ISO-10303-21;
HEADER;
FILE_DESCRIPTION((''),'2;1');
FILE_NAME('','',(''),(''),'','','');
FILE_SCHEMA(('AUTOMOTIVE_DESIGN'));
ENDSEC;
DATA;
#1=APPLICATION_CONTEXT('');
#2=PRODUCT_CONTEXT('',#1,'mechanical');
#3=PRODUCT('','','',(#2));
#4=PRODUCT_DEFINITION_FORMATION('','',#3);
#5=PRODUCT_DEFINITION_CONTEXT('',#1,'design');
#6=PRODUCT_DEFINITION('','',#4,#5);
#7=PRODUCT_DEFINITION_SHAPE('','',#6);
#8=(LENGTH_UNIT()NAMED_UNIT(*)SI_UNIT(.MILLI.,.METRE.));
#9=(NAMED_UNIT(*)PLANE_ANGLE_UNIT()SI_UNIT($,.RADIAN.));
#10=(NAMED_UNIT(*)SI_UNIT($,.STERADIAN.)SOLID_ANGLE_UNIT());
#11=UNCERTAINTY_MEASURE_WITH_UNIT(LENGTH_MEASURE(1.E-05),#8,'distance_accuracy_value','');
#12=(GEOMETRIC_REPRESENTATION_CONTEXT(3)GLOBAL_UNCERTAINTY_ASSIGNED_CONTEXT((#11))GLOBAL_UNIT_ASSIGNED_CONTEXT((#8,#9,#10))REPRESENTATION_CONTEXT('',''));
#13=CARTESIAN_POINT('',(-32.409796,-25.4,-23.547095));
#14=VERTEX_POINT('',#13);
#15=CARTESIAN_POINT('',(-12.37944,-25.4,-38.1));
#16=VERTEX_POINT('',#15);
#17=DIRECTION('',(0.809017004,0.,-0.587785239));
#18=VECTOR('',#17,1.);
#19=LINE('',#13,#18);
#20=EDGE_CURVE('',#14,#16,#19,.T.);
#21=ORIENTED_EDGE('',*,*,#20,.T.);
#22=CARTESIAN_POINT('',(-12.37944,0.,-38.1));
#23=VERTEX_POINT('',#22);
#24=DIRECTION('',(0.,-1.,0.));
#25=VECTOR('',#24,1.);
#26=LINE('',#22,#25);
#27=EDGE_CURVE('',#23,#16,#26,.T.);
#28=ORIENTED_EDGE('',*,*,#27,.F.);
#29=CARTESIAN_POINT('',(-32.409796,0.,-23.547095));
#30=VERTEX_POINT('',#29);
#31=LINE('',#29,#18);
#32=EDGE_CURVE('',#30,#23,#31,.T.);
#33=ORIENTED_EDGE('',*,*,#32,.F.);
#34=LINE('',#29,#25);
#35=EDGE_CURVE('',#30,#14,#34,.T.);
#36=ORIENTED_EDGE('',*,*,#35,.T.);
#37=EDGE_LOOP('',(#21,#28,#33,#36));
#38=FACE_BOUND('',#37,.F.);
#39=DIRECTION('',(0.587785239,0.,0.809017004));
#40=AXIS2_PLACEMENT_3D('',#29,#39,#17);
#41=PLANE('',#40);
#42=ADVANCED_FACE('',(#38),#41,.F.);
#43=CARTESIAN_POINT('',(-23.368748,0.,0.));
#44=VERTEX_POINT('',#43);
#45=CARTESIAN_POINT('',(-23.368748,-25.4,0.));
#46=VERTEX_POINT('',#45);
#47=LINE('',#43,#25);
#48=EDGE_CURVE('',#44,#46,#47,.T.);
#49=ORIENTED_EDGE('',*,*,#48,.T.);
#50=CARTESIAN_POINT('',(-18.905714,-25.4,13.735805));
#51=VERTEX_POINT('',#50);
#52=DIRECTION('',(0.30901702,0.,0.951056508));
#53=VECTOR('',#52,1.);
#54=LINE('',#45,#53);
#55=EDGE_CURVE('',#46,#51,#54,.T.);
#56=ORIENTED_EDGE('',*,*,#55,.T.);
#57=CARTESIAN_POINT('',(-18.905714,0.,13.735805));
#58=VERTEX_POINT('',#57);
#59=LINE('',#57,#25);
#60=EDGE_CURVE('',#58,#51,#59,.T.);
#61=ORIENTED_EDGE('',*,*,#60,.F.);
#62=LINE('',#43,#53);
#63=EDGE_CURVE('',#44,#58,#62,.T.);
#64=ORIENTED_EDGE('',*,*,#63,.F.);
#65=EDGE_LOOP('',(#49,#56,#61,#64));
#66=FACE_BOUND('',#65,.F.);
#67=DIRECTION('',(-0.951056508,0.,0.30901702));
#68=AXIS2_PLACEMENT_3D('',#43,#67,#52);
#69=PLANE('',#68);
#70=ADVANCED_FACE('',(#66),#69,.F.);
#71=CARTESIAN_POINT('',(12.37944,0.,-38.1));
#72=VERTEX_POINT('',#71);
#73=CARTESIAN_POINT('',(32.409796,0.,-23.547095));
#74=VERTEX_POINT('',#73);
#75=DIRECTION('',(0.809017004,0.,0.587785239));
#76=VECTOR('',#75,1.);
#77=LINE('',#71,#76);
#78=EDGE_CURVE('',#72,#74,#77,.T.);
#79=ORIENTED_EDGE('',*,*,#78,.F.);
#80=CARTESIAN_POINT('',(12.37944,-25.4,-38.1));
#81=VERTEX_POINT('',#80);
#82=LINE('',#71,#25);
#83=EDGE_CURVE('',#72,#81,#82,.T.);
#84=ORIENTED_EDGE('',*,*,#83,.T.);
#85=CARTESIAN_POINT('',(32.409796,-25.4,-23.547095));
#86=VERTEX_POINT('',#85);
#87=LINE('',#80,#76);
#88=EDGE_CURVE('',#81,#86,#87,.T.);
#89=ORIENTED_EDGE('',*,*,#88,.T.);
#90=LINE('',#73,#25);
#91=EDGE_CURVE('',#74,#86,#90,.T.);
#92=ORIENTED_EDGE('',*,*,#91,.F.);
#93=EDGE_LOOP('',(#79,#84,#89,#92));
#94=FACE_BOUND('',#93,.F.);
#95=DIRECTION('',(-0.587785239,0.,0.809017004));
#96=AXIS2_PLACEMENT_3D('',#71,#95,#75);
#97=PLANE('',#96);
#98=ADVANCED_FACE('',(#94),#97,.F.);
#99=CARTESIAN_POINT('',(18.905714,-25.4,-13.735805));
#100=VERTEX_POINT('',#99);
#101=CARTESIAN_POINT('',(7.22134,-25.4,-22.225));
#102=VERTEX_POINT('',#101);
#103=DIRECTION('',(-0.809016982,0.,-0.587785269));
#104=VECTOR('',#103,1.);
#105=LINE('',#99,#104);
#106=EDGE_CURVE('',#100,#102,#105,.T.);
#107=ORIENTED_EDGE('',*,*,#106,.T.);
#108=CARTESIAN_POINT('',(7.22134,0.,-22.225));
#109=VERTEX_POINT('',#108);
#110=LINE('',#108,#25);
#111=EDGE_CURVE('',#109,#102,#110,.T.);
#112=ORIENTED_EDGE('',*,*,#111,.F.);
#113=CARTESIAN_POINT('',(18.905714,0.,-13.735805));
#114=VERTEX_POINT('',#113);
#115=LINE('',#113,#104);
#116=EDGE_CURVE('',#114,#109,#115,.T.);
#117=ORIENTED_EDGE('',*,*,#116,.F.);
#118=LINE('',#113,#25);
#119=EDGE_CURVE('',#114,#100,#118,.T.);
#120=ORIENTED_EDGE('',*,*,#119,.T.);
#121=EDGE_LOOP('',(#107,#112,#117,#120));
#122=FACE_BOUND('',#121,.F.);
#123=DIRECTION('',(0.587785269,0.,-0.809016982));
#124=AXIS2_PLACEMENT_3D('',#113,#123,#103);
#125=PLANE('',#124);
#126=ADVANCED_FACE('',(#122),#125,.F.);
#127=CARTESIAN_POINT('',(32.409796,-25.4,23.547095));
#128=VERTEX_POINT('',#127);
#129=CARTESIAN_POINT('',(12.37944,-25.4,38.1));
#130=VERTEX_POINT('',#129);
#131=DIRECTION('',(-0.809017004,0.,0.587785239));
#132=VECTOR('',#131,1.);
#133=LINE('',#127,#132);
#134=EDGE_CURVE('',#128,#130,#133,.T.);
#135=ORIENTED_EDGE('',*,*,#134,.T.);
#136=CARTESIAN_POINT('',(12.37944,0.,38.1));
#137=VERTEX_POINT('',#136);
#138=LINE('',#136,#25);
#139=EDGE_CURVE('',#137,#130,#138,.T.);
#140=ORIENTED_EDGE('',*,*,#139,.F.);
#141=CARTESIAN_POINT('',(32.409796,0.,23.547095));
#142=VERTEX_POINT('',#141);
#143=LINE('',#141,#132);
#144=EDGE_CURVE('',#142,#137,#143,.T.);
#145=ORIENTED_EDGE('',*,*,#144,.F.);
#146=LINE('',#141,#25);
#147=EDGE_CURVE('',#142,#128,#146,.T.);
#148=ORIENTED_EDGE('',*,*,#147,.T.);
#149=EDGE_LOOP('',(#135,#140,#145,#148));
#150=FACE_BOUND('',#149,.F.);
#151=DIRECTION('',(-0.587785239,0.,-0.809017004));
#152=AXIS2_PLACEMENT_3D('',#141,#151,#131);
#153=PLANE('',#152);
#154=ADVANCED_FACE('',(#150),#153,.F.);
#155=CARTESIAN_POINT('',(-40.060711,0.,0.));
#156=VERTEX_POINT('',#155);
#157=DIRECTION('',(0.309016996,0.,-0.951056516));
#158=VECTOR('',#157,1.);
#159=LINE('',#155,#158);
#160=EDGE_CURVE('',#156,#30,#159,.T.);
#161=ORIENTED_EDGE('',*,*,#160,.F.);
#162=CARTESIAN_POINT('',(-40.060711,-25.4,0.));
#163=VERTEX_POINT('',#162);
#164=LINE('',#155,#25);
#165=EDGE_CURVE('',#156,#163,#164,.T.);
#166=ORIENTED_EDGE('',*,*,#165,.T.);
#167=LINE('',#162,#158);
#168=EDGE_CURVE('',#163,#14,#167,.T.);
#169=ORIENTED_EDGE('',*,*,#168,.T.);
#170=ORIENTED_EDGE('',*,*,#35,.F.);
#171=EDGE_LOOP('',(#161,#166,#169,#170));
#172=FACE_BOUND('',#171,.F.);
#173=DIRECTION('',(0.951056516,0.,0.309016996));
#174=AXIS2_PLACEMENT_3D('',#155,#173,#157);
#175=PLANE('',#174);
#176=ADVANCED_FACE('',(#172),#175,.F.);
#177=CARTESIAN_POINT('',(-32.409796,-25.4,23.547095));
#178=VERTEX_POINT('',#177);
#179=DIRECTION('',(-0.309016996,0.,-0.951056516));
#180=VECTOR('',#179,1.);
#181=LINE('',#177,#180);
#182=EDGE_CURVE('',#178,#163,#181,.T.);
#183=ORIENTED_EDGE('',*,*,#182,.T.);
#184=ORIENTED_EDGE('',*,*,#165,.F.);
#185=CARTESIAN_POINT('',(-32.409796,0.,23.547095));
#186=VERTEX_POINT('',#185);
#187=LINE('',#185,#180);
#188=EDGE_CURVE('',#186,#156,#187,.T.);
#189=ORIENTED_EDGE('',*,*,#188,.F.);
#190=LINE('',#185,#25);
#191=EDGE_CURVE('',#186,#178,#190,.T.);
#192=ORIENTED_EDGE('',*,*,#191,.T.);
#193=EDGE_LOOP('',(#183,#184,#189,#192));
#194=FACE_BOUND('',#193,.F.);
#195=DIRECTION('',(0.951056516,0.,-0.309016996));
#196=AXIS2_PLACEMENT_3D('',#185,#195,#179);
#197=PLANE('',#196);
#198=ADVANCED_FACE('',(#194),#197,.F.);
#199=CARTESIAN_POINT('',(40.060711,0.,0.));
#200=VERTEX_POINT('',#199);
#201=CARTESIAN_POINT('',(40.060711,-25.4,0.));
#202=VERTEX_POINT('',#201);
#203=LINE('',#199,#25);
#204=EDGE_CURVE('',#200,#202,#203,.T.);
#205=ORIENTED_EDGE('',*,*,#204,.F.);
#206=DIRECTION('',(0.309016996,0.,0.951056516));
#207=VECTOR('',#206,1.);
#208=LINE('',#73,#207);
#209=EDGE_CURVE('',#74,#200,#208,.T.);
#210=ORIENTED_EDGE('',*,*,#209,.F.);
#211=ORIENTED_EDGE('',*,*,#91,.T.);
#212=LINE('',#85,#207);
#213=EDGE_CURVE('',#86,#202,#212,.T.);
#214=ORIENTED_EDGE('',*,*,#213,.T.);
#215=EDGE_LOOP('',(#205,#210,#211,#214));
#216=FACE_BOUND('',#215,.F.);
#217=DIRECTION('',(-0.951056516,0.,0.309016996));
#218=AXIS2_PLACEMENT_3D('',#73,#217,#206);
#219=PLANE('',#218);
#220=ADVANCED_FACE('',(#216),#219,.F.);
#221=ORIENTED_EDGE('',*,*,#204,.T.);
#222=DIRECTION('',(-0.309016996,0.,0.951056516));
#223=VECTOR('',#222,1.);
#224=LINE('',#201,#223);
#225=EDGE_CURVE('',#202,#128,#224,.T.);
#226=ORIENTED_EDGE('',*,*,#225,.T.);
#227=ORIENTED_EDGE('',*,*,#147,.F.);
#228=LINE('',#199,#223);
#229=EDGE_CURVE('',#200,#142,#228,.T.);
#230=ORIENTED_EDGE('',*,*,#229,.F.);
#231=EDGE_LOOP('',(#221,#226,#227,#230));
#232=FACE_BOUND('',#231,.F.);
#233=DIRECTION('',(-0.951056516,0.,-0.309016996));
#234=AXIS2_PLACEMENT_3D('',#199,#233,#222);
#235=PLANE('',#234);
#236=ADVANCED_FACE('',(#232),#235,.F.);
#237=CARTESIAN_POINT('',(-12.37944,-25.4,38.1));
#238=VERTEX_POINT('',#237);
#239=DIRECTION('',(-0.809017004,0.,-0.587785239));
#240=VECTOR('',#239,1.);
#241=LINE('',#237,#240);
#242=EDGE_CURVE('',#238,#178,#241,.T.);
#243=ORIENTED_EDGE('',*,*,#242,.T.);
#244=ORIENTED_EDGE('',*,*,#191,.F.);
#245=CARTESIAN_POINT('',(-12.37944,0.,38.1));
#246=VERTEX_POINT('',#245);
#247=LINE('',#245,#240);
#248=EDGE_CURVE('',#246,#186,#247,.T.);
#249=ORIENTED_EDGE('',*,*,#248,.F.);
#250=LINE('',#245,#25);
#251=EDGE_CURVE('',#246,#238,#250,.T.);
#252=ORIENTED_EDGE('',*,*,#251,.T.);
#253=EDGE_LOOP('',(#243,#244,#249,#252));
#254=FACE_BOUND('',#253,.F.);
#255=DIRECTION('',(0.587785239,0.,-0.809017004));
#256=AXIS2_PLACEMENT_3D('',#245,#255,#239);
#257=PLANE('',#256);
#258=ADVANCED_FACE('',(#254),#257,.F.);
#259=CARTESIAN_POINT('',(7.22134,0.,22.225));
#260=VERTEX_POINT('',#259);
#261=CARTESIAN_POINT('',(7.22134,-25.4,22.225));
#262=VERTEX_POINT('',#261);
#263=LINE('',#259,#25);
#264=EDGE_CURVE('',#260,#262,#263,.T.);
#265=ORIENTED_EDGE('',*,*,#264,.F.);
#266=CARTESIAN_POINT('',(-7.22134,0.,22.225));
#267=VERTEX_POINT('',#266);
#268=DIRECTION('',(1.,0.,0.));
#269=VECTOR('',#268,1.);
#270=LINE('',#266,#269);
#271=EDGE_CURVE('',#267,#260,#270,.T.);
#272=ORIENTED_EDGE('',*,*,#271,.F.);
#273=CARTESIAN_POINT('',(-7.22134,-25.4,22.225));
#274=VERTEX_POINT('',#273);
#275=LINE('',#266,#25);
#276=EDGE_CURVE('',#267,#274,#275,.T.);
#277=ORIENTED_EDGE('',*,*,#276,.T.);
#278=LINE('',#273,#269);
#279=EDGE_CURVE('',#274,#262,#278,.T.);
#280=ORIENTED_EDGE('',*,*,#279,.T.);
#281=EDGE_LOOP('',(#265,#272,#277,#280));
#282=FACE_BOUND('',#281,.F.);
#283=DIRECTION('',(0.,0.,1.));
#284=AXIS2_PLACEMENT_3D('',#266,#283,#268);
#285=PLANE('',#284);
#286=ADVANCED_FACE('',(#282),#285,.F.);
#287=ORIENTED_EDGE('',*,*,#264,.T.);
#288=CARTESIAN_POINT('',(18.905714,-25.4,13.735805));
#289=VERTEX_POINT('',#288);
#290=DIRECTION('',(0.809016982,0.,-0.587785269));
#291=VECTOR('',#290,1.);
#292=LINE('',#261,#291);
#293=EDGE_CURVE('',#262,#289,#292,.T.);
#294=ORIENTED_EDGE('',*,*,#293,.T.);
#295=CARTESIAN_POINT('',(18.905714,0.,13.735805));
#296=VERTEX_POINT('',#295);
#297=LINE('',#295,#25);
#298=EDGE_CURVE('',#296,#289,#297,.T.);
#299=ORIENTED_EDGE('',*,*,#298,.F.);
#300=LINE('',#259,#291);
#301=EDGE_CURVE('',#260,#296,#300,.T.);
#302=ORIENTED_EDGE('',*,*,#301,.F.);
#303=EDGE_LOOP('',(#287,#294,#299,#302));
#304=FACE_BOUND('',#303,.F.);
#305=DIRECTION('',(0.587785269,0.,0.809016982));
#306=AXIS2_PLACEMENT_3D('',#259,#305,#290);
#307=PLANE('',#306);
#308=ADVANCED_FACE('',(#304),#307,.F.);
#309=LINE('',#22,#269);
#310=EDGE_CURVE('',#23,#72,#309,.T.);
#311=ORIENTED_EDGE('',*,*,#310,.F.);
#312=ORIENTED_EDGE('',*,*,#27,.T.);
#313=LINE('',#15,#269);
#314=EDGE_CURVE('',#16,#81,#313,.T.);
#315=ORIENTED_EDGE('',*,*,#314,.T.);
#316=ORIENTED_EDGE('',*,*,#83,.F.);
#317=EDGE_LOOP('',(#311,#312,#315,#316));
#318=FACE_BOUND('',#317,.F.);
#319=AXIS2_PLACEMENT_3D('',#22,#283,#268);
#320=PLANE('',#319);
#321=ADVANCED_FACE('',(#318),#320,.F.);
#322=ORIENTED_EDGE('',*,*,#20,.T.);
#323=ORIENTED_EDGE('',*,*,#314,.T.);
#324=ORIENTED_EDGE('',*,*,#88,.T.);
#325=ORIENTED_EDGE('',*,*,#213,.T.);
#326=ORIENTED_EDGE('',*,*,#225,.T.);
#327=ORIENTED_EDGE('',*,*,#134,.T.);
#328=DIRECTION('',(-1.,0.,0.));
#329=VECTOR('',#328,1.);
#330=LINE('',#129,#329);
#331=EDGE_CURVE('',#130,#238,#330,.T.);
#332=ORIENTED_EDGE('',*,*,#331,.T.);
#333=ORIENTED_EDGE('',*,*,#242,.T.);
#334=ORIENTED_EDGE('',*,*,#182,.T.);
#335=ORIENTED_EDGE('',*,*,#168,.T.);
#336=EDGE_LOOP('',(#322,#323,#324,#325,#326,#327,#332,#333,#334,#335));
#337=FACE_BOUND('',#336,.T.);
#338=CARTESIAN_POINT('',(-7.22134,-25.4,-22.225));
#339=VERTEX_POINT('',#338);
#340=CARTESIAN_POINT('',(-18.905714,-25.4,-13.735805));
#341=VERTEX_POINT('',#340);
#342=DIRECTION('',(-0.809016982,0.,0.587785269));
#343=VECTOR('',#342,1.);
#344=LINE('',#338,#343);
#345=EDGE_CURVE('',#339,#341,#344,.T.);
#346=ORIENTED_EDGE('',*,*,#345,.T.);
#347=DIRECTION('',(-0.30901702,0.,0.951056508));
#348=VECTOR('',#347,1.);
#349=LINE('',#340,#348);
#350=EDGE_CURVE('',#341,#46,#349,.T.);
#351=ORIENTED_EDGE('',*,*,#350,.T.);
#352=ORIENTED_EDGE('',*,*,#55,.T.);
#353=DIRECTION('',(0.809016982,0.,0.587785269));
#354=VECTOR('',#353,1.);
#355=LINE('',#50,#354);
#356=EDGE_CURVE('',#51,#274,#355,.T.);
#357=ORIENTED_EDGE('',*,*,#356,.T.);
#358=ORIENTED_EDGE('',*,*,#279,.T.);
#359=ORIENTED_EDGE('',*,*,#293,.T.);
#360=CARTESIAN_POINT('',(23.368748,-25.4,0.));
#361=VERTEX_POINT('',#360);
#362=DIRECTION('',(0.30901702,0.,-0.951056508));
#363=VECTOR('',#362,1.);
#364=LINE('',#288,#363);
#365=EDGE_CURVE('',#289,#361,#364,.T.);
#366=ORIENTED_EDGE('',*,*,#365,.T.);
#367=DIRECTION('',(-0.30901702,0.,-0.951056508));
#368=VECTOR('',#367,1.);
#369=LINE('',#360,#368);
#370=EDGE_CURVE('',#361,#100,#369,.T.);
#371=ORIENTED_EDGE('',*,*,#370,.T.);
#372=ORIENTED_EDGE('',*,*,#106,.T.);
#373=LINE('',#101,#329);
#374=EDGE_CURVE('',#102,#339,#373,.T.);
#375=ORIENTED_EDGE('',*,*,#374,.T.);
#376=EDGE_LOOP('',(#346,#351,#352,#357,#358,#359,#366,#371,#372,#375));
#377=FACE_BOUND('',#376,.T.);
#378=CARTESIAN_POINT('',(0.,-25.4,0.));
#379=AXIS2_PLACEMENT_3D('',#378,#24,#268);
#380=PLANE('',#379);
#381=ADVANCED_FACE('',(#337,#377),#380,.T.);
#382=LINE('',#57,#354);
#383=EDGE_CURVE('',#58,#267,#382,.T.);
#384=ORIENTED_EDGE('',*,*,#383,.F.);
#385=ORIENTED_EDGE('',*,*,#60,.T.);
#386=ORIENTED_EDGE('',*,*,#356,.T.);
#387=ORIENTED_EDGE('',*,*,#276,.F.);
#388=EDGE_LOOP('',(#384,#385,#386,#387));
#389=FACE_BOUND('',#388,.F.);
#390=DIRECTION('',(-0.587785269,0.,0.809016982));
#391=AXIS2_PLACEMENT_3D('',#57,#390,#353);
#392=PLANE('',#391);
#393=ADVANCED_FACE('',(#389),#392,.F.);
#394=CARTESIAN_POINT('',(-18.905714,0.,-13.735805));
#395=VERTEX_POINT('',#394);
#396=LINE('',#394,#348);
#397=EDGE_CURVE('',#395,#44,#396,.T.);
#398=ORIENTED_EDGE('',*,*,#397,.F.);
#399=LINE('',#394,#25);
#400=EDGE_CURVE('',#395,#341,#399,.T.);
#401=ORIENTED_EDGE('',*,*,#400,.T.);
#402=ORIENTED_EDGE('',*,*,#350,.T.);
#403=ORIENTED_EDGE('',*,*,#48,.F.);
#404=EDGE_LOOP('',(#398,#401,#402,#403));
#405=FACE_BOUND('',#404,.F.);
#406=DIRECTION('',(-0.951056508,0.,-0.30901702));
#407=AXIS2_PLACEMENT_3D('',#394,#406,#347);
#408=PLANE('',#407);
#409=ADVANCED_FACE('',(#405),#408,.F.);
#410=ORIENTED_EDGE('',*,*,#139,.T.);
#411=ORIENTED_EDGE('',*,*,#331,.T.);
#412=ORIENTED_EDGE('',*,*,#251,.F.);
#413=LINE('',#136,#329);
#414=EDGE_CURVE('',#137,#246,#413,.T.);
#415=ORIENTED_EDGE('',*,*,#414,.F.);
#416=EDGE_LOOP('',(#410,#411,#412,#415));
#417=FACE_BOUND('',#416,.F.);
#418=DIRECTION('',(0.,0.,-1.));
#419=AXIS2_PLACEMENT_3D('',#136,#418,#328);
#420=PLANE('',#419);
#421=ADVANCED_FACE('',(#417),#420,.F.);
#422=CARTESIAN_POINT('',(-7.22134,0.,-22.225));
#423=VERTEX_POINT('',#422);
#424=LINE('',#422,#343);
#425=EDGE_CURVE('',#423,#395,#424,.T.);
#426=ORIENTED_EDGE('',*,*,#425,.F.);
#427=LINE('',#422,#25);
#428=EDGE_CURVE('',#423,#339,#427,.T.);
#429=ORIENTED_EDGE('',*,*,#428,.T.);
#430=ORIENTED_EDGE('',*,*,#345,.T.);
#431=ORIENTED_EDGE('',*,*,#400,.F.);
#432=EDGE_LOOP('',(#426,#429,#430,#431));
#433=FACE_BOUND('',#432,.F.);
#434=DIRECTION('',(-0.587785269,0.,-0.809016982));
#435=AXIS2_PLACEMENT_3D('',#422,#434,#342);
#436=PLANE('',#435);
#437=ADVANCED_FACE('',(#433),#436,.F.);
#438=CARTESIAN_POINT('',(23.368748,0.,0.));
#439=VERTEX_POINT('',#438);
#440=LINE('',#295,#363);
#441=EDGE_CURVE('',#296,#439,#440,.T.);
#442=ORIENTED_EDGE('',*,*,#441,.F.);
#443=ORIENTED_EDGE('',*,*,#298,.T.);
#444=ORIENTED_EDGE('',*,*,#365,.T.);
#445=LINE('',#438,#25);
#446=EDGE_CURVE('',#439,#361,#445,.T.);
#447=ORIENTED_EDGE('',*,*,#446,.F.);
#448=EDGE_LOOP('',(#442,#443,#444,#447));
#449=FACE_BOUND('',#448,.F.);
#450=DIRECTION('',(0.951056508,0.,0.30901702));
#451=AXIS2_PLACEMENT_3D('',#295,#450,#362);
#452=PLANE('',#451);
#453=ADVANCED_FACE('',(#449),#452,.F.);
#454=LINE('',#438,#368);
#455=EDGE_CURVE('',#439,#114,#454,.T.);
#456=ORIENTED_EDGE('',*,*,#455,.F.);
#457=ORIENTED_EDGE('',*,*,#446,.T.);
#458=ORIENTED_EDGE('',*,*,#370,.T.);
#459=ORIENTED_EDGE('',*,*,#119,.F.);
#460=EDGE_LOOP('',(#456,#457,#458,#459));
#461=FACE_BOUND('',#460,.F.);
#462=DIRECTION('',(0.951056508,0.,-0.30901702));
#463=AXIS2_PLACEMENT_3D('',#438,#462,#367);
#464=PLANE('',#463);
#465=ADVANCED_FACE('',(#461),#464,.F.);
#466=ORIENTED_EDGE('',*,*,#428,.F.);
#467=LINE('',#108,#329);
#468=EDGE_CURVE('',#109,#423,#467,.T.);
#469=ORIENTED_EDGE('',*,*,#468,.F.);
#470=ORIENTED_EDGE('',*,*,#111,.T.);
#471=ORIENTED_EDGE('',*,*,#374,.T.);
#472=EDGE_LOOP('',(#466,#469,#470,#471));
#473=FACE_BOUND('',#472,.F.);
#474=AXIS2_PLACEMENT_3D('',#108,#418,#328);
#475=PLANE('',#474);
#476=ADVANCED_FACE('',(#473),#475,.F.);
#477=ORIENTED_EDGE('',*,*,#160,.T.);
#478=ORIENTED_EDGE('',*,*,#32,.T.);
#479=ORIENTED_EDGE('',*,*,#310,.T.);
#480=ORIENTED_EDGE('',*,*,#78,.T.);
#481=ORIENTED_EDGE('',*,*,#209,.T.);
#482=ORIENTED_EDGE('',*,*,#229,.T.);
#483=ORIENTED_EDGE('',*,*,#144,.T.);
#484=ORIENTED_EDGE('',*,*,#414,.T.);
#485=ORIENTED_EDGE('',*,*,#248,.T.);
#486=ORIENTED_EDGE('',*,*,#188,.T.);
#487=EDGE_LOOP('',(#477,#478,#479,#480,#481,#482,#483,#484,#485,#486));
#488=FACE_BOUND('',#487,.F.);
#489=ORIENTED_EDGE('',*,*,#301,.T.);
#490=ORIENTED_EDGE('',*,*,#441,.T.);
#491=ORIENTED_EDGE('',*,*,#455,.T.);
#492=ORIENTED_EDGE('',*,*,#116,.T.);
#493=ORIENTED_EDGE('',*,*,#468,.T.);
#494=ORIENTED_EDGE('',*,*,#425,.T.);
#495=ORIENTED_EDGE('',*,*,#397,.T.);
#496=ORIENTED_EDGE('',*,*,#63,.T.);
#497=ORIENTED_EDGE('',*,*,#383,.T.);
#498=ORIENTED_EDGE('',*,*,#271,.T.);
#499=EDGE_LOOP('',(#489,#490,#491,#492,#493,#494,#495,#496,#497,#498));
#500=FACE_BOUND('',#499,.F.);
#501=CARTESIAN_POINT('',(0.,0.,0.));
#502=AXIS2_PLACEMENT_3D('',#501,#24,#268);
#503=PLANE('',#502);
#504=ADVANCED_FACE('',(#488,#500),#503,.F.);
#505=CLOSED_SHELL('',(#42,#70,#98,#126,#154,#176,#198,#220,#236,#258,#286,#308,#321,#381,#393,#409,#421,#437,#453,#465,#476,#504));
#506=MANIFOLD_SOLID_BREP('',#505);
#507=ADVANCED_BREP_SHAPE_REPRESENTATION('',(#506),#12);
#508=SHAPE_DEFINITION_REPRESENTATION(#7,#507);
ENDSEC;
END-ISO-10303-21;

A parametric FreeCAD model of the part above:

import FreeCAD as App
import Part
import Sketcher

V = App.Vector
Q = App.Units.Quantity


def add_polygon(sketch, points):
    """Adds a closed chain of lines whose ends are joined by coincident constraints."""
    first, n = sketch.GeometryCount, len(points)
    for a, b in zip(points, points[1:] + points[:1]):
        sketch.addGeometry(Part.LineSegment(App.Vector(*a, 0), App.Vector(*b, 0)), False)
    for i in range(n):
        sketch.addConstraint(Sketcher.Constraint("Coincident", first + i, 2, first + (i + 1) % n, 1))

doc = App.newDocument("Part")
body = doc.addObject("PartDesign::Body", "Body")

# Sketch on XZ plane
sketch1 = body.newObject("Sketcher::SketchObject", "Sketch")
sketch1.AttachmentSupport = (doc.getObject("XZ_Plane"), [""])
sketch1.MapMode = "FlatFace"
add_polygon(sketch1, [(12, 38), (-12, 38), (-32, 24), (-40, 0), (-32, -24), (-12, -38), (12, -38), (32, -24), (40, 0), (32, 24)])  # lines 0-9
add_polygon(sketch1, [(-19, 14), (-7, 22), (7, 22), (19, 14), (23, 0), (19, -14), (7, -22), (-7, -22), (-19, -14), (-23, 0)])  # lines 10-19
sketch1.addConstraint([
    Sketcher.Constraint("Horizontal", 0),
    Sketcher.Constraint("Horizontal", 5),
    Sketcher.Constraint("Horizontal", 11),
    Sketcher.Constraint("Horizontal", 16),
    Sketcher.Constraint("Symmetric", 0, 2, 5, 2, -1, 1),
    Sketcher.Constraint("Symmetric", 1, 2, 6, 2, -1, 1),
    Sketcher.Constraint("Symmetric", 2, 2, 7, 2, -1, 1),
    Sketcher.Constraint("Symmetric", 3, 2, 8, 2, -1, 1),
    Sketcher.Constraint("Symmetric", 10, 2, 15, 2, -1, 1),
    Sketcher.Constraint("Symmetric", 12, 2, 17, 2, -1, 1),
    Sketcher.Constraint("Symmetric", 13, 2, 18, 2, -1, 1),
    Sketcher.Constraint("Symmetric", 14, 2, 19, 2, -1, 1),
    Sketcher.Constraint("Symmetric", 3, 2, 6, 2, -2),
    Sketcher.Constraint("Symmetric", 14, 2, 17, 2, -2),
    Sketcher.Constraint("PointOnObject", 2, 2, -1),
    Sketcher.Constraint("PointOnObject", 13, 2, -1),
    Sketcher.Constraint("Parallel", 4, 9),
    Sketcher.Constraint("Parallel", 6, 10),
    Sketcher.Constraint("Parallel", 9, 12),
    Sketcher.Constraint("Parallel", 8, 13),
    Sketcher.Constraint("Parallel", 12, 17),
    Sketcher.Constraint("Vertical", 0, 2, 4, 2),
    Sketcher.Constraint("Equal", 1, 2),
    Sketcher.Constraint("Equal", 12, 13),
    Sketcher.Constraint("Angle", 1, Q("-144.000001 deg")),
    Sketcher.Constraint("Angle", 2, Q("-108 deg")),
    Sketcher.Constraint("DistanceY", 4, 2, 0, 2, Q("3 in")),
    Sketcher.Constraint("DistanceY", -1, 1, 10, 2, Q("0.875 in")),
    Sketcher.Constraint("DistanceX", 0, 2, 0, 1, Q("24.75888 mm")),
    Sketcher.Constraint("DistanceX", 11, 1, 11, 2, Q("14.44268 mm")),
])
pad1 = body.newObject("PartDesign::Pad", "Pad")
pad1.Profile = sketch1
pad1.Length = Q("1 in")

doc.recompute()
